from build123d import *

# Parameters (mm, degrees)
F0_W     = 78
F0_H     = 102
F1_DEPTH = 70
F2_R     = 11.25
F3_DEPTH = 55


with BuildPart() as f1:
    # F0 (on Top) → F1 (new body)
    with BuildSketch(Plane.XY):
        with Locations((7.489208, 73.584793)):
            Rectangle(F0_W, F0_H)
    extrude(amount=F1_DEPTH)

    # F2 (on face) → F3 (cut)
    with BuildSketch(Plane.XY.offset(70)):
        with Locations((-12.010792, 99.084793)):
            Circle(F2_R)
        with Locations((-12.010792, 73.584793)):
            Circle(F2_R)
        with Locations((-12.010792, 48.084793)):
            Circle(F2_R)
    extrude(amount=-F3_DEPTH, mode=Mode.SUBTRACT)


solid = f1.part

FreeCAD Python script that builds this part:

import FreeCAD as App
import Part
import Sketcher

V = App.Vector


def add_polygon(sketch, points):
    """Adds a closed chain of lines whose ends are joined by coincident constraints."""
    first, n = sketch.GeometryCount, len(points)
    for a, b in zip(points, points[1:] + points[:1]):
        sketch.addGeometry(Part.LineSegment(App.Vector(*a, 0), App.Vector(*b, 0)), False)
    for i in range(n):
        sketch.addConstraint(Sketcher.Constraint("Coincident", first + i, 2, first + (i + 1) % n, 1))

doc = App.newDocument("Part")
body = doc.addObject("PartDesign::Body", "Body")

sketch1 = body.newObject("Sketcher::SketchObject", "Sketch")
sketch1.AttachmentSupport = (doc.getObject("XY_Plane"), [""])
sketch1.MapMode = "FlatFace"
add_polygon(sketch1, [(-32, 125), (-32, 23), (46, 23), (46, 125)])
sketch1.addConstraint(Sketcher.Constraint("Vertical", 0))
sketch1.addConstraint(Sketcher.Constraint("Horizontal", 1))
sketch1.addConstraint(Sketcher.Constraint("Vertical", 2))
sketch1.addConstraint(Sketcher.Constraint("Horizontal", 3))
sketch1.addConstraint(Sketcher.Constraint("DistanceX", 1, 1, 1, 2, 78.0))
sketch1.addConstraint(Sketcher.Constraint("DistanceY", 0, 2, 0, 1, 102.0))
sketch1.addConstraint(Sketcher.Constraint("DistanceX", 0, 2, -1, 1, 31.510792))
sketch1.addConstraint(Sketcher.Constraint("DistanceY", -1, 1, 0, 2, 22.584793))
pad1 = body.newObject("PartDesign::Pad", "Pad")
pad1.Profile = sketch1
pad1.Length = 70

sketch2 = body.newObject("Sketcher::SketchObject", "Sketch001")
sketch2.AttachmentSupport = (doc.getObject("XY_Plane"), [""])
sketch2.MapMode = "FlatFace"
sketch2.AttachmentOffset = App.Placement(V(0, 0, 70), App.Rotation())
sketch2.addGeometry(Part.Circle(V(-12, 99, 0), V(0, 0, 1), 11), False)
sketch2.addGeometry(Part.Circle(V(-12, 74, 0), V(0, 0, 1), 11), False)
sketch2.addGeometry(Part.Circle(V(-12, 48, 0), V(0, 0, 1), 11), False)
sketch2.addConstraint(Sketcher.Constraint("Equal", 0, 1))
sketch2.addConstraint(Sketcher.Constraint("Equal", 1, 2))
sketch2.addConstraint(Sketcher.Constraint("Vertical", 0, 3, 1, 3))
sketch2.addConstraint(Sketcher.Constraint("Vertical", 1, 3, 2, 3))
sketch2.addConstraint(Sketcher.Constraint("Diameter", 0, 22.5))
sketch2.addConstraint(Sketcher.Constraint("DistanceY", 2, 3, 0, 3, 51.0))
sketch2.addConstraint(Sketcher.Constraint("DistanceY", 1, 3, 0, 3, 25.5))
sketch2.addConstraint(Sketcher.Constraint("DistanceX", 0, 3, -1, 1, 12.010792))
sketch2.addConstraint(Sketcher.Constraint("DistanceY", -1, 1, 0, 3, 99.084793))
pocket1 = body.newObject("PartDesign::Pocket", "Pocket")
pocket1.Profile = sketch2
pocket1.Length = 55

doc.recompute()
